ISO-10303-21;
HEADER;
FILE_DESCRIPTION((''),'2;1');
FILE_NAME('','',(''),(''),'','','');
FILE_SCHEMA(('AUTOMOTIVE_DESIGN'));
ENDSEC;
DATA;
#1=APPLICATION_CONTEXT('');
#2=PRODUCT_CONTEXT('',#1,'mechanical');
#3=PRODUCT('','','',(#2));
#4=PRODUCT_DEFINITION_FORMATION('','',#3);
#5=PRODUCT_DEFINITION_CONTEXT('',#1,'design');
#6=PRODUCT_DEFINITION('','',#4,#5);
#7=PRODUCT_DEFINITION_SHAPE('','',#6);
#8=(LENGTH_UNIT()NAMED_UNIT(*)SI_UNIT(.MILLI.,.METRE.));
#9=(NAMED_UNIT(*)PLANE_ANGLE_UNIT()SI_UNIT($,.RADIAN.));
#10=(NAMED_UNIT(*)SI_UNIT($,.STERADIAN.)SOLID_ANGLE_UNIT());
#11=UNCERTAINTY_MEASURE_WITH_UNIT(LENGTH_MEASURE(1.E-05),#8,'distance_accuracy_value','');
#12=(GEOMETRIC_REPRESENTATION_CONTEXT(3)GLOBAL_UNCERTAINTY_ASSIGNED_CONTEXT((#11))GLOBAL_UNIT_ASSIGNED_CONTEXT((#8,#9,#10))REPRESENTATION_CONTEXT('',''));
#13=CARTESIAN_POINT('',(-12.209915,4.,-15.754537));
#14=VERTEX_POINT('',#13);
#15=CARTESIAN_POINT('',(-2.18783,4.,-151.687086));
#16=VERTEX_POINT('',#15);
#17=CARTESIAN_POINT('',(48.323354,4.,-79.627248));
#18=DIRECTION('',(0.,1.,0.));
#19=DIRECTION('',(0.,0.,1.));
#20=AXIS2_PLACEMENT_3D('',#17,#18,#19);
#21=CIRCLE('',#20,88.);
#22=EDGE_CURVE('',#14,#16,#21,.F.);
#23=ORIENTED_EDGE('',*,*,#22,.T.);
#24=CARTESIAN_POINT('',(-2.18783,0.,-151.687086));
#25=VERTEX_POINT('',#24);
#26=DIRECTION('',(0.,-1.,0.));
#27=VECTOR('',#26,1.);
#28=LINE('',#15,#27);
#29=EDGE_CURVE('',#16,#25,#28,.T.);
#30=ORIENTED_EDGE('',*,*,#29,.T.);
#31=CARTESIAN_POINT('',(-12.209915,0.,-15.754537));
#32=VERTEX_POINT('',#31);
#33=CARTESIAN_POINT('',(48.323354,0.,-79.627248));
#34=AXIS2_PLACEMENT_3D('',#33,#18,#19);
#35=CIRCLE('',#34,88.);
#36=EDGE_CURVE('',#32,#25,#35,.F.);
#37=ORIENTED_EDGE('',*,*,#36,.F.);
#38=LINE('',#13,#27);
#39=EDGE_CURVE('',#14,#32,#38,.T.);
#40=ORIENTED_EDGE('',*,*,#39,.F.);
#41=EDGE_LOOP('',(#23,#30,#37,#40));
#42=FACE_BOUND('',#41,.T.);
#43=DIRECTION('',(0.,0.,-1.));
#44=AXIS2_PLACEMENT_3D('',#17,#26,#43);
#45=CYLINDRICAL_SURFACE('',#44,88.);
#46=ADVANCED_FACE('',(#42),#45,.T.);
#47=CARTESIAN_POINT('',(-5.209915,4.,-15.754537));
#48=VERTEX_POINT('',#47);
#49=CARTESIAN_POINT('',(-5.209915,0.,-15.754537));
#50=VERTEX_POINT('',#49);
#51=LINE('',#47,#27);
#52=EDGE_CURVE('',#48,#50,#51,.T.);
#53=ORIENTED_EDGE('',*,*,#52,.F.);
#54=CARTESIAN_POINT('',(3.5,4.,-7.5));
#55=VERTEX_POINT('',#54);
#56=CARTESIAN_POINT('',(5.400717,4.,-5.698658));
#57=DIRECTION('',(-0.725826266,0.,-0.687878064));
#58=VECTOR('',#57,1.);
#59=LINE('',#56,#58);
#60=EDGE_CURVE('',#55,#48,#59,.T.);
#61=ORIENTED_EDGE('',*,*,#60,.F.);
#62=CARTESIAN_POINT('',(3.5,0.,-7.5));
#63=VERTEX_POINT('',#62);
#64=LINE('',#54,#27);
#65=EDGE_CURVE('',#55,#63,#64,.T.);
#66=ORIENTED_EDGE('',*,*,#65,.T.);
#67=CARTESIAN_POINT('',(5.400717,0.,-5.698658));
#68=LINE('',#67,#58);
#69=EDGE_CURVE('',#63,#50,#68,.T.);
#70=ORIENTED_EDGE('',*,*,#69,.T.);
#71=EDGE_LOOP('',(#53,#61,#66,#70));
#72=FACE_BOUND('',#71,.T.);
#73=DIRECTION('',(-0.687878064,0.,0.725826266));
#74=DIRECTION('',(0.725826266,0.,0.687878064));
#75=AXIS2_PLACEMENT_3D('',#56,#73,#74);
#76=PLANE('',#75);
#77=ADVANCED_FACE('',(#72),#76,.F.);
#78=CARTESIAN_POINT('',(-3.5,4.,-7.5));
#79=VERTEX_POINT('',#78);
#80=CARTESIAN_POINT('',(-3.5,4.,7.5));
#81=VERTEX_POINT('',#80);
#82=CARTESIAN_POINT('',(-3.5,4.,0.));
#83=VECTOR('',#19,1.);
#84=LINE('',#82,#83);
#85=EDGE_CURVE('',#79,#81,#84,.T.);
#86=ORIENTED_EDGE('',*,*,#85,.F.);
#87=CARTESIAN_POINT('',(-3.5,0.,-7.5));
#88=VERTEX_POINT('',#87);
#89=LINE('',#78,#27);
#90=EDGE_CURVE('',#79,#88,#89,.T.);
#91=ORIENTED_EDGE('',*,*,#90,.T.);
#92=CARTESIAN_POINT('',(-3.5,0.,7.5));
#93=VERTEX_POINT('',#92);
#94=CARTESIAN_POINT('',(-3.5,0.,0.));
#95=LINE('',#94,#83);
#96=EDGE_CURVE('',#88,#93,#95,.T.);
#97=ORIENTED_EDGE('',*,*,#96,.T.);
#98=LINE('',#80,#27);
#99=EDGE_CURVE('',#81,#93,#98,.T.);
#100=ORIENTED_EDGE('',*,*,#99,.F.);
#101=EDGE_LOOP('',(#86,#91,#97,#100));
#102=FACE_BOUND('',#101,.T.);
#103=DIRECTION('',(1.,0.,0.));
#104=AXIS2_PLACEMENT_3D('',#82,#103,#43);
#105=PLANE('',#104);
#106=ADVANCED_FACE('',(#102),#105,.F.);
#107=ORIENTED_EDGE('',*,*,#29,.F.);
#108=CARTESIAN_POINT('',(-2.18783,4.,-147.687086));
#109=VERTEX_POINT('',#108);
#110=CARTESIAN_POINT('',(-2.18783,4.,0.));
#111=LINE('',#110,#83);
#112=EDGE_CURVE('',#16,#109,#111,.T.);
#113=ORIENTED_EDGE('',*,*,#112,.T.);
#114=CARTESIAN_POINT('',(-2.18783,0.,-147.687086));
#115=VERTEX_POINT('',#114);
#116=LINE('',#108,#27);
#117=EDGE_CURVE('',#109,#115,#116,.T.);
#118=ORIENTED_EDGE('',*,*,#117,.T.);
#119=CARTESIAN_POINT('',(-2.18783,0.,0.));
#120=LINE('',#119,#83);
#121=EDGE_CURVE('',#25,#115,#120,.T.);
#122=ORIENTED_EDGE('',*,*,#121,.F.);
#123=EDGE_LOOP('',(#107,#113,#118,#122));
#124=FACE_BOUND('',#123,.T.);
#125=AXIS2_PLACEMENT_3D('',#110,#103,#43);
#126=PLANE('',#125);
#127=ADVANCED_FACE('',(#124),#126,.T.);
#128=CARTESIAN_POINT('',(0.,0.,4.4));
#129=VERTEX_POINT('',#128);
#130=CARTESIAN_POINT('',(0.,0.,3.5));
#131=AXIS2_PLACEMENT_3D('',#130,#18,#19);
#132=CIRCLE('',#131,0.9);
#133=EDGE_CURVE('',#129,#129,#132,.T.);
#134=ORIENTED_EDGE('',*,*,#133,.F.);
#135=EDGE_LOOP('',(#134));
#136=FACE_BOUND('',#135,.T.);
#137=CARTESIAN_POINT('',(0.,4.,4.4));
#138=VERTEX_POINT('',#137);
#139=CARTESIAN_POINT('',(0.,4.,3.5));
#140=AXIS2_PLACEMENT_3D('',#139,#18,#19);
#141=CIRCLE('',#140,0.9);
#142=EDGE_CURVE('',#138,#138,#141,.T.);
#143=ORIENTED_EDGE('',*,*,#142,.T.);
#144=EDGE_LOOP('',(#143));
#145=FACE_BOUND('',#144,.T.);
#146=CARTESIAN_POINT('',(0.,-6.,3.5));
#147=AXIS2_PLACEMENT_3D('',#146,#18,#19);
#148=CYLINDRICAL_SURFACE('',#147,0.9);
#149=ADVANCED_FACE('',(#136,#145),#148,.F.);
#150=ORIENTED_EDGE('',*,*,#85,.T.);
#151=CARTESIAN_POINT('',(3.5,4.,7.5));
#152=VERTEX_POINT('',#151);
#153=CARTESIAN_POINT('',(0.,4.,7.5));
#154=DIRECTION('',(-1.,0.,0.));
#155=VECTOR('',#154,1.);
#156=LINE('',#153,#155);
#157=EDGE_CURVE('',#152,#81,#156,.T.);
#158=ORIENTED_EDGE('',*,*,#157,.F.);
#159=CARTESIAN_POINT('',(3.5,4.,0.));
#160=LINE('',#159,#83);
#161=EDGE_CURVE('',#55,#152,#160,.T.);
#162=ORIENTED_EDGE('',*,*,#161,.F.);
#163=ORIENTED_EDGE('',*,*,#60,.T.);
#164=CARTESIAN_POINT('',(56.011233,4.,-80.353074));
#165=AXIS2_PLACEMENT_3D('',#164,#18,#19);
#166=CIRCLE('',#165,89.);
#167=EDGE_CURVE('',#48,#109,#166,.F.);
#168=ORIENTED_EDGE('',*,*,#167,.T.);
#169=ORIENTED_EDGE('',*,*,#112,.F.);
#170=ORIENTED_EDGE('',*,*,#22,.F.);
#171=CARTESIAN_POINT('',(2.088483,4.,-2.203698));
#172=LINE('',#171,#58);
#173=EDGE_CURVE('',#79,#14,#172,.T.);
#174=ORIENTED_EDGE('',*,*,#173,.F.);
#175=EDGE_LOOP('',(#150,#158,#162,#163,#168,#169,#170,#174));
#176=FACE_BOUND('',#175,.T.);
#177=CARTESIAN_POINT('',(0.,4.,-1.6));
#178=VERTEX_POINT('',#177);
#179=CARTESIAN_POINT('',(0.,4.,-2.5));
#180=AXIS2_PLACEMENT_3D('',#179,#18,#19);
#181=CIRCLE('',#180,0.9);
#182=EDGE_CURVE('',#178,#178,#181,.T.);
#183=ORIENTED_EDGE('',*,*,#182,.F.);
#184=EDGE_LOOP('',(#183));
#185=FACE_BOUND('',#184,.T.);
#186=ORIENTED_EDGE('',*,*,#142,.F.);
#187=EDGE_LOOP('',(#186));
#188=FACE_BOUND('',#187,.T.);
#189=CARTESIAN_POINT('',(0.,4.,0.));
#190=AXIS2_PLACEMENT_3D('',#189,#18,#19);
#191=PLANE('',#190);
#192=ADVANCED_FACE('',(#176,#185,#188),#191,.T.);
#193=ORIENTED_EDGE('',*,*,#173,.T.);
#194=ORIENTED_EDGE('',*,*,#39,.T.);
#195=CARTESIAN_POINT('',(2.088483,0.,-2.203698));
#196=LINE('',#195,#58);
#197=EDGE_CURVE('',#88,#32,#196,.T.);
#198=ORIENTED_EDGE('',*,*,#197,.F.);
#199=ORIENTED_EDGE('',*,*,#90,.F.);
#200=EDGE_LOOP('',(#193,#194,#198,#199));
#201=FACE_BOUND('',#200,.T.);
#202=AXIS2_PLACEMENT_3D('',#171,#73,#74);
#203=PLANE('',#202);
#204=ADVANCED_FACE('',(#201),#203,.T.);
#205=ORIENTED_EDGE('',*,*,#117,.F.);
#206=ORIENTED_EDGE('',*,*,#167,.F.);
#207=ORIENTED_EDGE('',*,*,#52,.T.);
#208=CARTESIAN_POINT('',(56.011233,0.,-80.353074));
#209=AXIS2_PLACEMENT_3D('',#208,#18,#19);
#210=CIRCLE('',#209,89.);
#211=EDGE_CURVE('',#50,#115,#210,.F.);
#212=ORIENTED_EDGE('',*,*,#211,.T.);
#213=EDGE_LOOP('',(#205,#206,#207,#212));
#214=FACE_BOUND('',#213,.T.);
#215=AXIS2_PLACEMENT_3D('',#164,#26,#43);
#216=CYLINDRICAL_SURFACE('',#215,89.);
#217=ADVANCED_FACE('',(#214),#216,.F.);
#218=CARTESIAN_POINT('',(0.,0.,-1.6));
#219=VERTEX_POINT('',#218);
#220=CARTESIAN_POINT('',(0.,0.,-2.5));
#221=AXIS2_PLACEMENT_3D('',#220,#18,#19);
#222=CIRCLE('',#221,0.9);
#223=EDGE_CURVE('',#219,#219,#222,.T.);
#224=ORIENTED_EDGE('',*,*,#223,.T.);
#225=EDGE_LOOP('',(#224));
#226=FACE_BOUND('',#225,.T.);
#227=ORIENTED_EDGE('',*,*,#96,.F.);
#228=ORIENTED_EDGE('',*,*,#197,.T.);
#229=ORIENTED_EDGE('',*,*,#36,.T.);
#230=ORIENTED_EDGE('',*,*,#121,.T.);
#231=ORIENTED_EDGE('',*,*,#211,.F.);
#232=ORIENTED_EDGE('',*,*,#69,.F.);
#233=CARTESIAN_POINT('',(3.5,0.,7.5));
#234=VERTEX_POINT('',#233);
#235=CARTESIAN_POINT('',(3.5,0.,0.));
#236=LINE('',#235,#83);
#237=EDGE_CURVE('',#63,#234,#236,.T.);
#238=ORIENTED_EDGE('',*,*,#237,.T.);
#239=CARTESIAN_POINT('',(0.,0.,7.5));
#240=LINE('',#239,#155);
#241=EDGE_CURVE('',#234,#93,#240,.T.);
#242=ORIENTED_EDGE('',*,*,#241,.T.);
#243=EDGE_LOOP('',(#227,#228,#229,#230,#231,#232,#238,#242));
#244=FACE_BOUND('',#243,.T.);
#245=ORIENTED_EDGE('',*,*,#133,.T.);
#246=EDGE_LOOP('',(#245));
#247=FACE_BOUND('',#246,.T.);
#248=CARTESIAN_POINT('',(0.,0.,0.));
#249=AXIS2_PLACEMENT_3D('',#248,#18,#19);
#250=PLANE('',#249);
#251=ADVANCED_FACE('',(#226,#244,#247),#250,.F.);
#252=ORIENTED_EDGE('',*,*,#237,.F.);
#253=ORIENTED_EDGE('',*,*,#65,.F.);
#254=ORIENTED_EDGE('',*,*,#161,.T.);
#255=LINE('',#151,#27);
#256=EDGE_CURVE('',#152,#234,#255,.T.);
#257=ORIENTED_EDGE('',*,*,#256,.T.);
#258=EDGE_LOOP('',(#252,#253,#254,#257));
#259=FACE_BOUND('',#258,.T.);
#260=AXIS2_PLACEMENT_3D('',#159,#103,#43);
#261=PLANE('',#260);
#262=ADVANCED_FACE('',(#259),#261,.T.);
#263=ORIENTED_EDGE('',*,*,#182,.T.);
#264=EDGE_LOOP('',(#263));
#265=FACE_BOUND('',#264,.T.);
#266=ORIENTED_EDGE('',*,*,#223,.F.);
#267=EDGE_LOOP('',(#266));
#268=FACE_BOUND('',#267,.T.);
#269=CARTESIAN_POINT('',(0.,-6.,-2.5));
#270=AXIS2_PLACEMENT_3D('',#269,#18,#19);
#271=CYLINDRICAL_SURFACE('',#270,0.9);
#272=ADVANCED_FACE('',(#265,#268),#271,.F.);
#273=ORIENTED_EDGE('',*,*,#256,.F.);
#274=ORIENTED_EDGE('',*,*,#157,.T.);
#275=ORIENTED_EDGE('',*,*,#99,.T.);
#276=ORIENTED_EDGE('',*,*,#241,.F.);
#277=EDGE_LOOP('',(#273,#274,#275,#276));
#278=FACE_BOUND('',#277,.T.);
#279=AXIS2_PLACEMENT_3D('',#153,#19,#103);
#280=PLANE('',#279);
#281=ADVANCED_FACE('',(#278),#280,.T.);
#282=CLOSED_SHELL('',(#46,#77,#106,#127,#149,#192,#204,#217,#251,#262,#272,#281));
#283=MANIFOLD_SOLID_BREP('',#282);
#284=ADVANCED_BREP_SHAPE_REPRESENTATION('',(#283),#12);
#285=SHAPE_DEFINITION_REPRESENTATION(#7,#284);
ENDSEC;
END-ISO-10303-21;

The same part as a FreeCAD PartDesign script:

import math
import FreeCAD as App
import Part
import Sketcher

V = App.Vector

doc = App.newDocument("Part")
body = doc.addObject("PartDesign::Body", "Body")

# Sketch on XZ plane
sketch1 = body.newObject("Sketcher::SketchObject", "Sketch")
sketch1.AttachmentSupport = (doc.getObject("XZ_Plane"), [""])
sketch1.MapMode = "FlatFace"
sketch1.addGeometry([
    Part.LineSegment(V(3.5, 7.5, 0), V(3.5, -7.5, 0)),  # 0
    Part.LineSegment(V(3.5, -7.5, 0), V(-5.2, -15.8, 0)),  # 1
    Part.ArcOfCircle(Part.Circle(V(56, -80.4, 0), V(0, 0, 1), 89), math.radians(133), math.radians(229)),  # 2
    Part.LineSegment(V(-2.2, -147.7, 0), V(-2.2, -151.7, 0)),  # 3
    Part.ArcOfCircle(Part.Circle(V(48.3, -79.6, 0), V(0, 0, 1), 88), math.radians(133), math.radians(235)),  # 4
    Part.LineSegment(V(-12.2, -15.8, 0), V(-3.5, -7.5, 0)),  # 5
    Part.LineSegment(V(-3.5, -7.5, 0), V(-3.5, 7.5, 0)),  # 6
    Part.LineSegment(V(-3.5, 7.5, 0), V(3.5, 7.5, 0)),  # 7
], False)
sketch1.addConstraint([
    Sketcher.Constraint("Coincident", 0, 2, 1, 1),
    Sketcher.Constraint("Tangent", 1, 2, 2, 1),
    Sketcher.Constraint("Coincident", 2, 2, 3, 1),
    Sketcher.Constraint("Coincident", 3, 2, 4, 2),
    Sketcher.Constraint("Tangent", 4, 1, 5, 1),
    Sketcher.Constraint("Coincident", 5, 2, 6, 1),
    Sketcher.Constraint("Coincident", 6, 2, 7, 1),
    Sketcher.Constraint("Coincident", 7, 2, 0, 1),
    Sketcher.Constraint("Vertical", 0),
    Sketcher.Constraint("Vertical", 3),
    Sketcher.Constraint("Vertical", 6),
    Sketcher.Constraint("Horizontal", 7),
    Sketcher.Constraint("Symmetric", 0, 2, 6, 2, -1, 1),
    Sketcher.Constraint("Parallel", 1, 5),
    Sketcher.Constraint("Horizontal", 1, 2, 4, 1),
    Sketcher.Constraint("Horizontal", 0, 2, 5, 2),
    Sketcher.Constraint("Radius", 2, 89.0),
    Sketcher.Constraint("Radius", 4, 88.0),
    Sketcher.Constraint("DistanceX", 7, 1, 7, 2, 7.0),
    Sketcher.Constraint("DistanceY", 0, 2, 0, 1, 15.0),
    Sketcher.Constraint("DistanceY", 3, 2, 3, 1, 4.0),
    Sketcher.Constraint("Distance", 1, 12.0),
    Sketcher.Constraint("DistanceY", 4, 3, -1, 1, 79.627248),
])
pad1 = body.newObject("PartDesign::Pad", "Pad")
pad1.Profile = sketch1
pad1.Length = 4
pad1.Reversed = True

# Sketch on XZ plane
sketch2 = body.newObject("Sketcher::SketchObject", "Sketch001")
sketch2.AttachmentSupport = (doc.getObject("XZ_Plane"), [""])
sketch2.MapMode = "FlatFace"
sketch2.AttachmentOffset = App.Placement(V(0, 0, -4), App.Rotation())
sketch2.addGeometry([
    Part.Circle(V(0, 3.5, 0), V(0, 0, 1), 0.9),
    Part.Circle(V(0, -2.5, 0), V(0, 0, 1), 0.9),
], False)
sketch2.addConstraint([
    Sketcher.Constraint("Equal", 0, 1),
    Sketcher.Constraint("PointOnObject", 0, 3, -2),
    Sketcher.Constraint("PointOnObject", 1, 3, -2),
    Sketcher.Constraint("Diameter", 0, 1.8),
    Sketcher.Constraint("DistanceY", 1, 3, 0, 3, 6.0),
    Sketcher.Constraint("DistanceY", -1, 1, 0, 3, 3.5),
])
pocket1 = body.newObject("PartDesign::Pocket", "Pocket")
pocket1.Profile = sketch2
pocket1.Length = 10
pocket1.Reversed = True

doc.recompute()
